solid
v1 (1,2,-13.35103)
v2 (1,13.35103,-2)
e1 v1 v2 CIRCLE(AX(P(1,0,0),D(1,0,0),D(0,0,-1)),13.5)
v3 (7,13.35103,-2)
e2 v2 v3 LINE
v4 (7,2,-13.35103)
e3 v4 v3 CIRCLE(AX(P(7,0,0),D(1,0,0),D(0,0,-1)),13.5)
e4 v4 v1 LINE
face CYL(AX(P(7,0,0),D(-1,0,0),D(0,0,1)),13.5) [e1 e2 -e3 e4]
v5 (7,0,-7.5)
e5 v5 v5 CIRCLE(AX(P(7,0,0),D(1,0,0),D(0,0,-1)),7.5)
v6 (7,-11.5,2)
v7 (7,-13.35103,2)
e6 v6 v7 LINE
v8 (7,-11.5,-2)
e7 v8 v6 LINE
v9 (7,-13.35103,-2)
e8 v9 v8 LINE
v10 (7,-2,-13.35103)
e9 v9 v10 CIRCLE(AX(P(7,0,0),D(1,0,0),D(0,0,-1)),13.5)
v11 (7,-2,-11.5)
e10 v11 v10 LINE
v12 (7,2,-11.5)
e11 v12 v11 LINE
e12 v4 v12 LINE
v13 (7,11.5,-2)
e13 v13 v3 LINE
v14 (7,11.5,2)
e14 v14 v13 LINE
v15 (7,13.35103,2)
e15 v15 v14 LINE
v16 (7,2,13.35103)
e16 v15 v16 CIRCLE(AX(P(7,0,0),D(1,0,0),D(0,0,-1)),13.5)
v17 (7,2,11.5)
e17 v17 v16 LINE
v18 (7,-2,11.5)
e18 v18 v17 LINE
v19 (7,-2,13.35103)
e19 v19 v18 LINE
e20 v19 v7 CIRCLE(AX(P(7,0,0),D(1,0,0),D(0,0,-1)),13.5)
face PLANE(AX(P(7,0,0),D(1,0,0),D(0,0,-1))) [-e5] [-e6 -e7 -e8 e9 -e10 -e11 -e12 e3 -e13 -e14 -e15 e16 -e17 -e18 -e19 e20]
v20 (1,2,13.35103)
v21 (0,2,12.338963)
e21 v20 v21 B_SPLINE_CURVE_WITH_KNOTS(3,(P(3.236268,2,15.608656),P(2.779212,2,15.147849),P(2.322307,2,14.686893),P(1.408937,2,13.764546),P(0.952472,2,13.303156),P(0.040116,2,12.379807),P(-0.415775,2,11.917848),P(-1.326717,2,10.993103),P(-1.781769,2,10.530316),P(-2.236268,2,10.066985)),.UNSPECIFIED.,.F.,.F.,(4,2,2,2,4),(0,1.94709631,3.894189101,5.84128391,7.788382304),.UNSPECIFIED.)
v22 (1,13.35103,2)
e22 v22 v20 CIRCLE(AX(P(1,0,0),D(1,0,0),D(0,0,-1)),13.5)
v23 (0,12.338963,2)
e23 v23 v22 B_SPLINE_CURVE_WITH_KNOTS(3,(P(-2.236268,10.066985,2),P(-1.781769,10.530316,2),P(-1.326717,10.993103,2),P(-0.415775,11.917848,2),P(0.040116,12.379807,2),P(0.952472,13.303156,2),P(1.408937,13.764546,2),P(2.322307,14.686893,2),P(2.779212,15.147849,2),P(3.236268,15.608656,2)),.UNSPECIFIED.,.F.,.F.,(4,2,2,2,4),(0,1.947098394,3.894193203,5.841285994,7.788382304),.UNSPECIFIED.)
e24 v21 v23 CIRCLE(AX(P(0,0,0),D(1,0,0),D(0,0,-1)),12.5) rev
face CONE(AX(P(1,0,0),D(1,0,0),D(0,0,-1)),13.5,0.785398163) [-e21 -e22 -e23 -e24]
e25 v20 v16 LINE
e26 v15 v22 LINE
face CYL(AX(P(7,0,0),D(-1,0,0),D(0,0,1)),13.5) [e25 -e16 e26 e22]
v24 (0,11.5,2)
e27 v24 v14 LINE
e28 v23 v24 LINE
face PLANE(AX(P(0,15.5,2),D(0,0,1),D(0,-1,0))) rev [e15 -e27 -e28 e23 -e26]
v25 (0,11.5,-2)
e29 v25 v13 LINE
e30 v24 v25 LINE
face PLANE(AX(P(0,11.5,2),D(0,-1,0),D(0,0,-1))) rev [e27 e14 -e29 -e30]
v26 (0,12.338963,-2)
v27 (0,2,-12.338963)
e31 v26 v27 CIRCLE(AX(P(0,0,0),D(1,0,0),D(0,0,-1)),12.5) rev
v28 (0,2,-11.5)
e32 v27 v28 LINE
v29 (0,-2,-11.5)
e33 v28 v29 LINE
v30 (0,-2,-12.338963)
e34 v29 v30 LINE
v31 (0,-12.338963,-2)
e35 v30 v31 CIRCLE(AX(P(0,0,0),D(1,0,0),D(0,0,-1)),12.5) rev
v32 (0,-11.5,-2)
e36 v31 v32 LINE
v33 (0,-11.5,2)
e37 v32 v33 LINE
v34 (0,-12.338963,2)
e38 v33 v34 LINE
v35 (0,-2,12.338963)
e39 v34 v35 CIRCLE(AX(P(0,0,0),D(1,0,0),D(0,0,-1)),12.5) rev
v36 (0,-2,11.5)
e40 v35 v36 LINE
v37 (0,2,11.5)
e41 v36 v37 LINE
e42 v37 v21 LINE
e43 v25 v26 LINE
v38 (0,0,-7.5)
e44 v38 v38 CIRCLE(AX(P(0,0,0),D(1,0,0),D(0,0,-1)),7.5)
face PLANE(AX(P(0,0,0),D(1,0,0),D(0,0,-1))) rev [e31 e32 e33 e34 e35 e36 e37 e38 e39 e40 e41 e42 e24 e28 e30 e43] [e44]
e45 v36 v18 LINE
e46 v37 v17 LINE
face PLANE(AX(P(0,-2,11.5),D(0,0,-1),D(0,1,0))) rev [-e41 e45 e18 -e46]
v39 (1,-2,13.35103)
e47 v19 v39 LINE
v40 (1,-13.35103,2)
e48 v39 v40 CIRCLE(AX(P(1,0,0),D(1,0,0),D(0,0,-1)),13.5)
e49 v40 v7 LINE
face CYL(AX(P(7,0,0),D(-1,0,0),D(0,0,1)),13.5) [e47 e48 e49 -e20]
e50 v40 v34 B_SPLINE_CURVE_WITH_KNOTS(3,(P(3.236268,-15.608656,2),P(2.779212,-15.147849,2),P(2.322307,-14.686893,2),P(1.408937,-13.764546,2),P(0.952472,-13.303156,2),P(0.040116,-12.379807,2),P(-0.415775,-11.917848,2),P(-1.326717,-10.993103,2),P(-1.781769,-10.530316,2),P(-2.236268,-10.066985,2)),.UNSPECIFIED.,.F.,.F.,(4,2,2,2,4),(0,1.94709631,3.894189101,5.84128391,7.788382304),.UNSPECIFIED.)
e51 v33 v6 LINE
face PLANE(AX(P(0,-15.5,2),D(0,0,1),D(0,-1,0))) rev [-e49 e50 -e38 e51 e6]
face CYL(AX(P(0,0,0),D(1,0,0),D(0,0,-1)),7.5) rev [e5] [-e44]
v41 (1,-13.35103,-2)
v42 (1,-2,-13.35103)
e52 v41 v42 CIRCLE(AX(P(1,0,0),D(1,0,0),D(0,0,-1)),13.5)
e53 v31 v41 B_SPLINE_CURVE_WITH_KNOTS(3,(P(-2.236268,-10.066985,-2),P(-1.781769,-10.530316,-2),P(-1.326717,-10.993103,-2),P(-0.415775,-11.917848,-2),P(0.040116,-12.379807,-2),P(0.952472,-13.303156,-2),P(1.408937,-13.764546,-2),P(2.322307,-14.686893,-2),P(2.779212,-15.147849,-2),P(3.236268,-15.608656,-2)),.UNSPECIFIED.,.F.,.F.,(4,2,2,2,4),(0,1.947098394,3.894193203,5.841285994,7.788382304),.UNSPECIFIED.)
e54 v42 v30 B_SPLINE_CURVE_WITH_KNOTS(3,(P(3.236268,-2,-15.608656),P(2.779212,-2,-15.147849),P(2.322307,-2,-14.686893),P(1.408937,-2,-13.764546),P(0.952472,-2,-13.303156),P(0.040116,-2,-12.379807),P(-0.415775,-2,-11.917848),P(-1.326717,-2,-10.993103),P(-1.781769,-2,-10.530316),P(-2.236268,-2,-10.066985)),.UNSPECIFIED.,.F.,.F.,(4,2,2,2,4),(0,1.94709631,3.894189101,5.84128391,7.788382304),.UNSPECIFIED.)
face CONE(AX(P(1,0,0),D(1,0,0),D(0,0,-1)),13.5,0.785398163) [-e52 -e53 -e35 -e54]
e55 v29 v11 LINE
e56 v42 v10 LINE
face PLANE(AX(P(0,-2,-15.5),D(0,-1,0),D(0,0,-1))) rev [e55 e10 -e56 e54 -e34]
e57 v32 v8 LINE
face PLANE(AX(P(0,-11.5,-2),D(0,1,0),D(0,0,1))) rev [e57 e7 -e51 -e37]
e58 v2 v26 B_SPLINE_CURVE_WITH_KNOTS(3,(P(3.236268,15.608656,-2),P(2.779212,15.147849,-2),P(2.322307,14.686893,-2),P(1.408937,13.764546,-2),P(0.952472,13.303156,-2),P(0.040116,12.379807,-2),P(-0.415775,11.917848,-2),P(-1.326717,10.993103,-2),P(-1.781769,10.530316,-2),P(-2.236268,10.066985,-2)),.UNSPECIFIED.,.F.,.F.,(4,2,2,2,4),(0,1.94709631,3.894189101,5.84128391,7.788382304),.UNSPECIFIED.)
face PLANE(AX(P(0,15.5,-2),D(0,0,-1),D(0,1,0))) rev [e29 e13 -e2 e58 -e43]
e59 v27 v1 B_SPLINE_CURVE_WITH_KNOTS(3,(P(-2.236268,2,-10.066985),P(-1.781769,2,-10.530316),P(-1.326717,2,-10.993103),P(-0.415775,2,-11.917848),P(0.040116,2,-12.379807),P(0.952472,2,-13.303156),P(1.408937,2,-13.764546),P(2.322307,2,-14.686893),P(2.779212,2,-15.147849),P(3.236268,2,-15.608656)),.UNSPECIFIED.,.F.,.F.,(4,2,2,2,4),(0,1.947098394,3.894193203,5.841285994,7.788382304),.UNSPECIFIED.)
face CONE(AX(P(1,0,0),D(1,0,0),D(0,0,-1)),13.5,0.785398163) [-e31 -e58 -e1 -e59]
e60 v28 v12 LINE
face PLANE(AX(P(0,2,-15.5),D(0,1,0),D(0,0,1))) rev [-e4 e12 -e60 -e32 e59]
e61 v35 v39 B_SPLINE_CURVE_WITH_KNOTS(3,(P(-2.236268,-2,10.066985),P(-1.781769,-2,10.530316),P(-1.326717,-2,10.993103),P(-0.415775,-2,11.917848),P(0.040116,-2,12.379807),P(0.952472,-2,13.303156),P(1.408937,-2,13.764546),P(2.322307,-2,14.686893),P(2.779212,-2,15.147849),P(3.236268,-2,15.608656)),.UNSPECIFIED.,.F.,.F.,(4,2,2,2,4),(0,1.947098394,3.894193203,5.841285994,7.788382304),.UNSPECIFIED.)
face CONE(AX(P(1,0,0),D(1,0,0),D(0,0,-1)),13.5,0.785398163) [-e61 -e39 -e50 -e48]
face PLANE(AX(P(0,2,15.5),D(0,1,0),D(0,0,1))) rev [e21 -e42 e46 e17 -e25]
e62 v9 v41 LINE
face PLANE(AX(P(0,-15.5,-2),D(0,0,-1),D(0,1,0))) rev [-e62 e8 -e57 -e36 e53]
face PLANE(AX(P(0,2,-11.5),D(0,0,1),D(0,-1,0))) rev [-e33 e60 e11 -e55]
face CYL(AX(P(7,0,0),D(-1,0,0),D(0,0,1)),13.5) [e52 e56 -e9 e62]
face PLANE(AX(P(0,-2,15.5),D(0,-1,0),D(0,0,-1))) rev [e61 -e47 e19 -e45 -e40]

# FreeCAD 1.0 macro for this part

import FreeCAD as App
import Part
import Sketcher
from FreeCAD import Vector
Q = App.Units.Quantity


def edges_at(feature, points):
    """Names of the edges that pass closest to the given points."""
    edges = feature.Shape.Edges
    near = lambda p: min(range(len(edges)), key=lambda i: edges[i].distToShape(Part.Vertex(*p))[0])
    return sorted({f"Edge{near(p) + 1}" for p in points})

doc = App.newDocument("Part")
params = doc.addObject("Spreadsheet::Sheet", "Params")
for row, (alias, value) in enumerate([
    ("sketch1_diameter", "27 mm"),
    ("pad1_length", "7 mm"),
    ("sketch2_diameter", "15 mm"),
    ("chamfer_size", "1 mm"),
    ("sketch3_width", "4 mm"),
], start=1):
    params.set(f"A{row}", alias)
    params.set(f"B{row}", "=" + value)
    params.setAlias(f"B{row}", alias)

body = doc.addObject("PartDesign::Body", "Body")

# Sketch on YZ plane
sketch1 = body.newObject("Sketcher::SketchObject", "Sketch")
sketch1.AttachmentSupport = (doc.getObject("YZ_Plane"), [""])
sketch1.MapMode = "FlatFace"
sketch1.addGeometry(Part.Circle(Vector(0, 0, 0), Vector(0, 0, 1), 14), False)
sketch1.addConstraint([
    Sketcher.Constraint("Coincident", 0, 3, -1, 1),
    Sketcher.Constraint("Diameter", 0, Q("27 mm")),
])
sketch1.setExpression("Constraints[1]", "Params.sketch1_diameter")
pad1 = body.newObject("PartDesign::Pad", "Pad")
pad1.Profile = sketch1
pad1.setExpression("Length", "Params.pad1_length")

# Sketch on YZ plane
sketch2 = body.newObject("Sketcher::SketchObject", "Sketch001")
sketch2.AttachmentSupport = (doc.getObject("YZ_Plane"), [""])
sketch2.MapMode = "FlatFace"
sketch2.AttachmentOffset = App.Placement(Vector(0, 0, 7), App.Rotation())
sketch2.addGeometry(Part.Circle(Vector(0, 0, 0), Vector(0, 0, 1), 8), False)
sketch2.addConstraint([
    Sketcher.Constraint("Coincident", 0, 3, -1, 1),
    Sketcher.Constraint("Diameter", 0, Q("15 mm")),
])
sketch2.setExpression("Constraints[1]", "Params.sketch2_diameter")
pocket1 = body.newObject("PartDesign::Pocket", "Pocket")
pocket1.Profile = sketch2
pocket1.Type = "ThroughAll"
doc.recompute()

chamfer = body.newObject("PartDesign::Chamfer", "Chamfer")
chamfer.Base = (pocket1, edges_at(pocket1, [(0, 0, 13.5)]))
chamfer.setExpression("Size", "Params.chamfer_size")

# Sketch on YZ plane
sketch3 = body.newObject("Sketcher::SketchObject", "Sketch002")
sketch3.AttachmentSupport = (doc.getObject("YZ_Plane"), [""])
sketch3.MapMode = "FlatFace"
sketch3.AttachmentOffset = App.Placement(Vector(0, 0, 7), App.Rotation())
sketch3.addGeometry([
    Part.LineSegment(Vector(15.5, 2, 0), Vector(11.5, 2, 0)),
    Part.LineSegment(Vector(11.5, 2, 0), Vector(11.5, -2, 0)),
    Part.LineSegment(Vector(11.5, -2, 0), Vector(15.5, -2, 0)),
    Part.LineSegment(Vector(15.5, -2, 0), Vector(15.5, 2, 0)),
], False)
sketch3.addConstraint([
    Sketcher.Constraint("Coincident", 0, 2, 1, 1),
    Sketcher.Constraint("Coincident", 1, 2, 2, 1),
    Sketcher.Constraint("Coincident", 2, 2, 3, 1),
    Sketcher.Constraint("Coincident", 3, 2, 0, 1),
    Sketcher.Constraint("Horizontal", 0),
    Sketcher.Constraint("Vertical", 1),
    Sketcher.Constraint("Horizontal", 2),
    Sketcher.Constraint("Vertical", 3),
    Sketcher.Constraint("Equal", 2, 1),
    Sketcher.Constraint("DistanceX", 0, 2, 0, 1, Q("4 mm")),
    Sketcher.Constraint("DistanceY", -1, 1, 0, 2, Q("2 mm")),
    Sketcher.Constraint("DistanceX", -1, 1, 0, 2, Q("11.5 mm")),
])
sketch3.setExpression("Constraints[9]", "Params.sketch3_width")
pocket2 = body.newObject("PartDesign::Pocket", "Pocket001")
pocket2.Profile = sketch3
pocket2.Type = "ThroughAll"
doc.recompute()

polarpattern = body.newObject("PartDesign::PolarPattern", "PolarPattern")
polarpattern.Originals = [pocket2]
polarpattern.Axis = (doc.getObject("X_Axis"), [""])
polarpattern.Angle = 360
polarpattern.Occurrences = 4
body.Tip = polarpattern

doc.recompute()
